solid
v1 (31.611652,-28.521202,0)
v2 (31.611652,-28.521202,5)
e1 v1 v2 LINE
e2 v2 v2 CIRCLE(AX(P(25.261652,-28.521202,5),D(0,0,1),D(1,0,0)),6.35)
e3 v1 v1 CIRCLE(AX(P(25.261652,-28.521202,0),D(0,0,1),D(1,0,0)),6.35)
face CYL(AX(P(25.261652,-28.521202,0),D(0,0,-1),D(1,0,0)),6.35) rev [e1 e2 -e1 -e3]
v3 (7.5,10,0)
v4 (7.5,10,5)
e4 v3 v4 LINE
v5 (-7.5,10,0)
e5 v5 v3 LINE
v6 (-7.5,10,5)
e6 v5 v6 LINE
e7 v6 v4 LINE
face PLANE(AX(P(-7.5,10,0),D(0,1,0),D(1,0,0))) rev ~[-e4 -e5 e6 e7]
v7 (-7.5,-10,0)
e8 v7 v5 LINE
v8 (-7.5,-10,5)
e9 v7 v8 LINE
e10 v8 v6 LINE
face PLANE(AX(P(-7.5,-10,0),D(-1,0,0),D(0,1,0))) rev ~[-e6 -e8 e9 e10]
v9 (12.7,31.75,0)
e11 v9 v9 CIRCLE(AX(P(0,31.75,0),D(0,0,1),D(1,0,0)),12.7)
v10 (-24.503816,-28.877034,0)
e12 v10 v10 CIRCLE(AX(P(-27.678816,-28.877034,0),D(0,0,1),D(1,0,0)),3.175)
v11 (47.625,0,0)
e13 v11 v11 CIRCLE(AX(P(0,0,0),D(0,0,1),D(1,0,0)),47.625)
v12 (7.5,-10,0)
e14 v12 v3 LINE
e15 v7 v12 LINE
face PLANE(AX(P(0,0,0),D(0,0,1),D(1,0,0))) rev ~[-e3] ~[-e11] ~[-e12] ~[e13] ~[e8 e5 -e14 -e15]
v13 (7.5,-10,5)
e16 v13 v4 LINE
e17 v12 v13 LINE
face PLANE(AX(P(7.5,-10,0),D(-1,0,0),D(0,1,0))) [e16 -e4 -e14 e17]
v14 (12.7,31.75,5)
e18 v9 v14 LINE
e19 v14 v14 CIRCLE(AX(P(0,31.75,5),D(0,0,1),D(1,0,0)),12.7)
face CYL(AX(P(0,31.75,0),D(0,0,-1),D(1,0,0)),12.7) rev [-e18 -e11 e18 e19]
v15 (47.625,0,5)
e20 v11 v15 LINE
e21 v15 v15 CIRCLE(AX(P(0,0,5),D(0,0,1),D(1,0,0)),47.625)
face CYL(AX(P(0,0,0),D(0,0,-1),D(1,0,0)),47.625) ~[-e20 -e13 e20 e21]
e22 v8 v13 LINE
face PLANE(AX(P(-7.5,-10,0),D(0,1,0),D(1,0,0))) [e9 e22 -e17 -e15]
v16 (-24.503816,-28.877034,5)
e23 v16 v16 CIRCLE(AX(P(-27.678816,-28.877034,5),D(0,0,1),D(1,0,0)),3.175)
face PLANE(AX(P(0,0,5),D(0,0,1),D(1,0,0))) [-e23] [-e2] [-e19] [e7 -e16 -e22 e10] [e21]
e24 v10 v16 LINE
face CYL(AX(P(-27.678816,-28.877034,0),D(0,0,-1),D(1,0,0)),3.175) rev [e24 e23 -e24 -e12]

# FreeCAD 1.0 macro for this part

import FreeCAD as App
import Part
import Sketcher
from FreeCAD import Vector
Q = App.Units.Quantity


def add_polygon(sketch, points):
    """Adds a closed chain of lines whose ends are joined by coincident constraints."""
    first, n = sketch.GeometryCount, len(points)
    for a, b in zip(points, points[1:] + points[:1]):
        sketch.addGeometry(Part.LineSegment(App.Vector(*a, 0), App.Vector(*b, 0)), False)
    for i in range(n):
        sketch.addConstraint(Sketcher.Constraint("Coincident", first + i, 2, first + (i + 1) % n, 1))

doc = App.newDocument("Part")
body = doc.addObject("PartDesign::Body", "Body")

sketch1 = body.newObject("Sketcher::SketchObject", "Sketch")
sketch1.AttachmentSupport = (doc.getObject("XY_Plane"), [""])
sketch1.MapMode = "FlatFace"
sketch1.addGeometry(Part.Circle(Vector(0, 0, 0), Vector(0, 0, 1), 47.625), False)
sketch1.addGeometry(Part.Circle(Vector(-27.678816, -28.877034, 0), Vector(0, 0, 1), 3.175), False)
add_polygon(sketch1, [(7.5, -10), (-7.5, -10), (-7.5, 10), (7.5, 10)])
sketch1.addGeometry(Part.Circle(Vector(25.261652, -28.521202, 0), Vector(0, 0, 1), 6.35), False)
sketch1.addGeometry(Part.Circle(Vector(0, 31.75, 0), Vector(0, 0, 1), 12.7), False)
sketch1.addConstraint(Sketcher.Constraint("Horizontal", 2))
sketch1.addConstraint(Sketcher.Constraint("Vertical", 3))
sketch1.addConstraint(Sketcher.Constraint("Horizontal", 4))
sketch1.addConstraint(Sketcher.Constraint("Vertical", 5))
sketch1.addConstraint(Sketcher.Constraint("Coincident", 0, 3, -1, 1))
sketch1.addConstraint(Sketcher.Constraint("Symmetric", 2, 2, 4, 2, -1, 1))
sketch1.addConstraint(Sketcher.Constraint("PointOnObject", 7, 3, -2))
sketch1.addConstraint(Sketcher.Constraint("Diameter", 7, Q("1 in")))
sketch1.addConstraint(Sketcher.Constraint("Diameter", 6, Q("0.5 in")))
sketch1.addConstraint(Sketcher.Constraint("Diameter", 0, Q("3.75 in")))
sketch1.addConstraint(Sketcher.Constraint("Diameter", 1, Q("0.25 in")))
sketch1.addConstraint(Sketcher.Constraint("DistanceY", -1, 1, 7, 3, Q("1.25 in")))
sketch1.addConstraint(Sketcher.Constraint("DistanceX", 2, 2, 2, 1, 15.0))
sketch1.addConstraint(Sketcher.Constraint("DistanceY", 3, 1, 3, 2, 20.0))
sketch1.addConstraint(Sketcher.Constraint("DistanceY", 6, 3, -1, 1, 28.521202))
sketch1.addConstraint(Sketcher.Constraint("DistanceX", 1, 3, 6, 3, 52.940468))
sketch1.addConstraint(Sketcher.Constraint("DistanceY", 1, 3, 6, 3, 0.355832))
sketch1.addConstraint(Sketcher.Constraint("DistanceX", 2, 2, 6, 3, 32.761652))
pad1 = body.newObject("PartDesign::Pad", "Pad")
pad1.Profile = sketch1
pad1.Length = 5

doc.recompute()
